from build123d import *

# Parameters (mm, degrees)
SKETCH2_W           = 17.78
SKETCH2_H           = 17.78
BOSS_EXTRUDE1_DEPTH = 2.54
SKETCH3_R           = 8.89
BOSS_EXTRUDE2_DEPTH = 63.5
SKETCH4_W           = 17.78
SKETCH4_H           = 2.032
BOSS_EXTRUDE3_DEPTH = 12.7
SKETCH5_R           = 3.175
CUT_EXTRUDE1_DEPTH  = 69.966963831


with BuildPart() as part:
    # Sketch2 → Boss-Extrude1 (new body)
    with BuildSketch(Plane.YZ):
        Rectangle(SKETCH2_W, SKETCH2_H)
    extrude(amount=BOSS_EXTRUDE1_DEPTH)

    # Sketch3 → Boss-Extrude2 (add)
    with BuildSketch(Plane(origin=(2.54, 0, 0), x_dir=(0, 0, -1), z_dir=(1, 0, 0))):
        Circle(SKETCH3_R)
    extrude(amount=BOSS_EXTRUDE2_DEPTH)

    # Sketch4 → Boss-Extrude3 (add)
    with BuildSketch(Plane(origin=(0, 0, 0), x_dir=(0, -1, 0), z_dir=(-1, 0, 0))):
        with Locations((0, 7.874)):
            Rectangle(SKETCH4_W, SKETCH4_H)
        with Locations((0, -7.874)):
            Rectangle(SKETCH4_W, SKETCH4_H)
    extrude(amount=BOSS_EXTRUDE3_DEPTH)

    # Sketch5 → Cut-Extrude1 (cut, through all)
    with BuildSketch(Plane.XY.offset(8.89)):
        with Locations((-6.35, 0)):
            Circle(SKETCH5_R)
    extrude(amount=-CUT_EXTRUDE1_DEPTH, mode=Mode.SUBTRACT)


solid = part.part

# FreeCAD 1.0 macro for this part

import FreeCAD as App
import Part
import Sketcher
from FreeCAD import Vector
Q = App.Units.Quantity

doc = App.newDocument("Part")
params = doc.addObject("Spreadsheet::Sheet", "Params")
for row, (alias, value) in enumerate([
    ("sketch1_width", "0.7 in"),
    ("pad1_length", "0.1 in"),
    ("sketch2_diameter", "0.7 in"),
    ("pad2_length", "2.5 in"),
    ("sketch3_width", "0.7 in"),
    ("sketch3_height", "0.08 in"),
    ("pad3_length", "0.5 in"),
    ("sketch4_diameter", "0.25 in"),
], start=1):
    params.set(f"A{row}", alias)
    params.set(f"B{row}", "=" + value)
    params.setAlias(f"B{row}", alias)

body = doc.addObject("PartDesign::Body", "Body")

# Sketch on YZ plane
sketch1 = body.newObject("Sketcher::SketchObject", "Sketch")
sketch1.AttachmentSupport = (doc.getObject("YZ_Plane"), [""])
sketch1.MapMode = "FlatFace"
sketch1.addGeometry([
    Part.LineSegment(Vector(-9, 9, 0), Vector(-9, -9, 0)),
    Part.LineSegment(Vector(-9, -9, 0), Vector(9, -9, 0)),
    Part.LineSegment(Vector(9, -9, 0), Vector(9, 9, 0)),
    Part.LineSegment(Vector(9, 9, 0), Vector(-9, 9, 0)),
], False)
sketch1.addConstraint([
    Sketcher.Constraint("Coincident", 0, 2, 1, 1),
    Sketcher.Constraint("Coincident", 1, 2, 2, 1),
    Sketcher.Constraint("Coincident", 2, 2, 3, 1),
    Sketcher.Constraint("Coincident", 3, 2, 0, 1),
    Sketcher.Constraint("Vertical", 0),
    Sketcher.Constraint("Horizontal", 1),
    Sketcher.Constraint("Vertical", 2),
    Sketcher.Constraint("Horizontal", 3),
    Sketcher.Constraint("Symmetric", 0, 2, 2, 2, -1, 1),
    Sketcher.Constraint("Equal", 3, 0),
    Sketcher.Constraint("DistanceX", 1, 1, 1, 2, Q("0.7 in")),
])
sketch1.setExpression("Constraints[10]", "Params.sketch1_width")
pad1 = body.newObject("PartDesign::Pad", "Pad")
pad1.Profile = sketch1
pad1.setExpression("Length", "Params.pad1_length")

# Sketch on YZ plane
sketch2 = body.newObject("Sketcher::SketchObject", "Sketch001")
sketch2.AttachmentSupport = (doc.getObject("YZ_Plane"), [""])
sketch2.MapMode = "FlatFace"
sketch2.AttachmentOffset = App.Placement(Vector(0, 0, 0.1 * 25.4), App.Rotation())
sketch2.addGeometry(Part.Circle(Vector(0, 0, 0), Vector(0, 0, 1), 9), False)
sketch2.addConstraint([
    Sketcher.Constraint("Coincident", 0, 3, -1, 1),
    Sketcher.Constraint("Diameter", 0, Q("0.7 in")),
])
sketch2.setExpression("Constraints[1]", "Params.sketch2_diameter")
pad2 = body.newObject("PartDesign::Pad", "Pad001")
pad2.Profile = sketch2
pad2.setExpression("Length", "Params.pad2_length")

# Sketch on YZ plane
sketch3 = body.newObject("Sketcher::SketchObject", "Sketch002")
sketch3.AttachmentSupport = (doc.getObject("YZ_Plane"), [""])
sketch3.MapMode = "FlatFace"
sketch3.addGeometry([
    Part.LineSegment(Vector(8.9, 8.9, 0), Vector(8.9, 6.9, 0)),  # 0
    Part.LineSegment(Vector(8.9, 6.9, 0), Vector(-8.9, 6.9, 0)),  # 1
    Part.LineSegment(Vector(-8.9, 6.9, 0), Vector(-8.9, 8.9, 0)),  # 2
    Part.LineSegment(Vector(-8.9, 8.9, 0), Vector(8.9, 8.9, 0)),  # 3
    Part.LineSegment(Vector(8.9, -6.9, 0), Vector(8.9, -8.9, 0)),  # 4
    Part.LineSegment(Vector(8.9, -8.9, 0), Vector(-8.9, -8.9, 0)),  # 5
    Part.LineSegment(Vector(-8.9, -8.9, 0), Vector(-8.9, -6.9, 0)),  # 6
    Part.LineSegment(Vector(-8.9, -6.9, 0), Vector(8.9, -6.9, 0)),  # 7
], False)
sketch3.addConstraint([
    Sketcher.Constraint("Coincident", 0, 2, 1, 1),
    Sketcher.Constraint("Coincident", 1, 2, 2, 1),
    Sketcher.Constraint("Coincident", 2, 2, 3, 1),
    Sketcher.Constraint("Coincident", 3, 2, 0, 1),
    Sketcher.Constraint("Coincident", 4, 2, 5, 1),
    Sketcher.Constraint("Coincident", 5, 2, 6, 1),
    Sketcher.Constraint("Coincident", 6, 2, 7, 1),
    Sketcher.Constraint("Coincident", 7, 2, 4, 1),
    Sketcher.Constraint("Vertical", 0),
    Sketcher.Constraint("Horizontal", 1),
    Sketcher.Constraint("Vertical", 2),
    Sketcher.Constraint("Horizontal", 3),
    Sketcher.Constraint("Vertical", 4),
    Sketcher.Constraint("Horizontal", 5),
    Sketcher.Constraint("Vertical", 6),
    Sketcher.Constraint("Horizontal", 7),
    Sketcher.Constraint("Symmetric", 2, 2, 4, 2, -1, 1),
    Sketcher.Constraint("Symmetric", 0, 2, 6, 2, -1, 1),
    Sketcher.Constraint("Vertical", 3, 2, 4, 2),
    Sketcher.Constraint("DistanceX", 1, 2, 1, 1, Q("0.7 in")),
    Sketcher.Constraint("DistanceY", 0, 2, 0, 1, Q("0.08 in")),
    Sketcher.Constraint("DistanceY", 4, 2, 3, 2, Q("0.7 in")),
])
sketch3.setExpression("Constraints[19]", "Params.sketch3_width")
sketch3.setExpression("Constraints[20]", "Params.sketch3_height")
pad3 = body.newObject("PartDesign::Pad", "Pad002")
pad3.Profile = sketch3
pad3.setExpression("Length", "Params.pad3_length")
pad3.Reversed = True

# Sketch on XY plane
sketch4 = body.newObject("Sketcher::SketchObject", "Sketch003")
sketch4.AttachmentSupport = (doc.getObject("XY_Plane"), [""])
sketch4.MapMode = "FlatFace"
sketch4.AttachmentOffset = App.Placement(Vector(0, 0, 0.35 * 25.4), App.Rotation())
sketch4.addGeometry(Part.Circle(Vector(-6.3, 0, 0), Vector(0, 0, 1), 3.2), False)
sketch4.addConstraint([
    Sketcher.Constraint("PointOnObject", 0, 3, -1),
    Sketcher.Constraint("Diameter", 0, Q("0.25 in")),
    Sketcher.Constraint("DistanceX", 0, 3, -1, 1, Q("0.25 in")),
])
sketch4.setExpression("Constraints[1]", "Params.sketch4_diameter")
pocket1 = body.newObject("PartDesign::Pocket", "Pocket")
pocket1.Profile = sketch4
pocket1.Type = "ThroughAll"

doc.recompute()
